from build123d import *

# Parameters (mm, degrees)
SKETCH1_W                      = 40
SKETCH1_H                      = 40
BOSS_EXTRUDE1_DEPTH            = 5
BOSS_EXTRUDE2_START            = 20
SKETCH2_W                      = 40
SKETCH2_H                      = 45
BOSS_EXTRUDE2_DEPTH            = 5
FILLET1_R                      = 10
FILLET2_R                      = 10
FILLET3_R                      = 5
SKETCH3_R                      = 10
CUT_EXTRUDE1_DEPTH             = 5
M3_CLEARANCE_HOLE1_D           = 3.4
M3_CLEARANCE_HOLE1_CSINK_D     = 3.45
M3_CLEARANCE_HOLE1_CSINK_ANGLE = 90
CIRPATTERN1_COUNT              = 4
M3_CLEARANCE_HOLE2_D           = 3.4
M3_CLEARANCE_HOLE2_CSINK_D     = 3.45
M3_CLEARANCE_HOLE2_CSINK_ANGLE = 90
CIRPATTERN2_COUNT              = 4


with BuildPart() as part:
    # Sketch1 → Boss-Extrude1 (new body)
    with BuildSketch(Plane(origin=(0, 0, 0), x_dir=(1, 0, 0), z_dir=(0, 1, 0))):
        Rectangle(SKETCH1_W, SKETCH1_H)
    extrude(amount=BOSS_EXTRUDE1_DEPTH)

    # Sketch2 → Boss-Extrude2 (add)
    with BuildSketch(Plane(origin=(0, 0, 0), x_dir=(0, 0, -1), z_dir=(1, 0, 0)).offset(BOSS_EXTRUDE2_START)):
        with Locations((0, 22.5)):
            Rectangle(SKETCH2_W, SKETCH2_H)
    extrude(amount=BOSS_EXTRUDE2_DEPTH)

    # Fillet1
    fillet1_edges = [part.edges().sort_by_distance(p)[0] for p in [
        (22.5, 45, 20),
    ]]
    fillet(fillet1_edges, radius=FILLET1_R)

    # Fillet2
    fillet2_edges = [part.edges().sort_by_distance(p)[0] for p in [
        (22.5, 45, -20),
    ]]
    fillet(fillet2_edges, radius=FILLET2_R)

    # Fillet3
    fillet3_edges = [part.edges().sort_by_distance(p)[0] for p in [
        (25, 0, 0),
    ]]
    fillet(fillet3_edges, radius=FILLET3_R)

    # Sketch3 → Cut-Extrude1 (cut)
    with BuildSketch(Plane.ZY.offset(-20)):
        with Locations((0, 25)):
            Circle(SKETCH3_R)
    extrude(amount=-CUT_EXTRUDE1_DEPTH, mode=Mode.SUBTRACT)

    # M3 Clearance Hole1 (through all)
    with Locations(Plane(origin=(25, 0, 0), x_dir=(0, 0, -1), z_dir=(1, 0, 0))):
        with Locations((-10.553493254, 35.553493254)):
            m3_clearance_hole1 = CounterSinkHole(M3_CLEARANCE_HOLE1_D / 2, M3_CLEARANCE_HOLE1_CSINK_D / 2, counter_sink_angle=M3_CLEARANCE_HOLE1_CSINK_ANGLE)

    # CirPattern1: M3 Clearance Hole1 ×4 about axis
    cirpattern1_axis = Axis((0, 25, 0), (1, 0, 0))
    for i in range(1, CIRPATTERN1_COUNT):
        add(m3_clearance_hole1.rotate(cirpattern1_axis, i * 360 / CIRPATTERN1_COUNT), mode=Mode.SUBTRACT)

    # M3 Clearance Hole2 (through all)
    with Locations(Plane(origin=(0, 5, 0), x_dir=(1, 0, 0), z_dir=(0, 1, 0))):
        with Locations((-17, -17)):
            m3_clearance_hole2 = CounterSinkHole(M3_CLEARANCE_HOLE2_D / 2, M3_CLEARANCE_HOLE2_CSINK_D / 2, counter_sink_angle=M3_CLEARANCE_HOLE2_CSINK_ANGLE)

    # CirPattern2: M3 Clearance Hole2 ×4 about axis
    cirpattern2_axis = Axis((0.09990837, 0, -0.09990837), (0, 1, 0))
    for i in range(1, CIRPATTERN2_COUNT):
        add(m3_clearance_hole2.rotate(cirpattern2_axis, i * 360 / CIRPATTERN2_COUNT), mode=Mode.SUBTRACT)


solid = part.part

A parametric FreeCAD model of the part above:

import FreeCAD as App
import Part
import Sketcher


def edges_at(feature, points):
    """Names of the edges that pass closest to the given points."""
    edges = feature.Shape.Edges
    near = lambda p: min(range(len(edges)), key=lambda i: edges[i].distToShape(Part.Vertex(*p))[0])
    return sorted({f"Edge{near(p) + 1}" for p in points})


def add_polygon(sketch, points):
    """Adds a closed chain of lines whose ends are joined by coincident constraints."""
    first, n = sketch.GeometryCount, len(points)
    for a, b in zip(points, points[1:] + points[:1]):
        sketch.addGeometry(Part.LineSegment(App.Vector(*a, 0), App.Vector(*b, 0)), False)
    for i in range(n):
        sketch.addConstraint(Sketcher.Constraint("Coincident", first + i, 2, first + (i + 1) % n, 1))

doc = App.newDocument("Part")
params = doc.addObject("Spreadsheet::Sheet", "Params")
for row, (alias, value) in enumerate([
    ("sketch1_width", "40 mm"),
    ("pad1_length", "5 mm"),
    ("sketch2_width", "45 mm"),
    ("sketch2_height", "40 mm"),
    ("pad2_length", "5 mm"),
    ("fillet_radius", "10 mm"),
    ("fillet2_radius", "10 mm"),
    ("fillet3_radius", "5 mm"),
    ("sketch3_diameter", "20 mm"),
    ("pocket1_length", "5 mm"),
    ("sketch4_diameter", "3.4 mm"),
    ("hole_diameter", "3.4 mm"),
    ("hole_csink_diameter", "3.45 mm"),
    ("sketch5_diameter", "3.4 mm"),
    ("hole2_diameter", "3.4 mm"),
    ("hole2_csink_diameter", "3.45 mm"),
], start=1):
    params.set(f"A{row}", alias)
    params.set(f"B{row}", "=" + value)
    params.setAlias(f"B{row}", alias)

body = doc.addObject("PartDesign::Body", "Body")

# Sketch on XZ plane
sketch1 = body.newObject("Sketcher::SketchObject", "Sketch")
sketch1.AttachmentSupport = (doc.getObject("XZ_Plane"), [""])
sketch1.MapMode = "FlatFace"
add_polygon(sketch1, [(-20, -20), (-20, 20), (20, 20), (20, -20)])  # lines 0-3
sketch1.addConstraint(Sketcher.Constraint("Vertical", 0))
sketch1.addConstraint(Sketcher.Constraint("Horizontal", 1))
sketch1.addConstraint(Sketcher.Constraint("Vertical", 2))
sketch1.addConstraint(Sketcher.Constraint("Horizontal", 3))
sketch1.addConstraint(Sketcher.Constraint("Symmetric", 0, 2, 2, 2, -1, 1))
sketch1.addConstraint(Sketcher.Constraint("Equal", 3, 0))
sketch1.addConstraint(Sketcher.Constraint("DistanceX", 1, 1, 1, 2, 40.0))
sketch1.setExpression("Constraints[10]", "Params.sketch1_width")
pad1 = body.newObject("PartDesign::Pad", "Pad")
pad1.Profile = sketch1
pad1.setExpression("Length", "Params.pad1_length")
pad1.Reversed = True

# Sketch on YZ plane
sketch2 = body.newObject("Sketcher::SketchObject", "Sketch001")
sketch2.AttachmentSupport = (doc.getObject("YZ_Plane"), [""])
sketch2.MapMode = "FlatFace"
sketch2.AttachmentOffset = App.Placement(App.Vector(0, 0, 20), App.Rotation())
add_polygon(sketch2, [(45, 20), (0, 20), (0, -20), (45, -20)])  # lines 0-3
sketch2.addConstraint(Sketcher.Constraint("Horizontal", 0))
sketch2.addConstraint(Sketcher.Constraint("Vertical", 1))
sketch2.addConstraint(Sketcher.Constraint("Horizontal", 2))
sketch2.addConstraint(Sketcher.Constraint("Vertical", 3))
sketch2.addConstraint(Sketcher.Constraint("Symmetric", 0, 2, 1, 2, -1, 1))
sketch2.addConstraint(Sketcher.Constraint("DistanceX", 0, 2, 0, 1, 45.0))
sketch2.addConstraint(Sketcher.Constraint("DistanceY", 1, 2, 1, 1, 40.0))
sketch2.setExpression("Constraints[9]", "Params.sketch2_width")
sketch2.setExpression("Constraints[10]", "Params.sketch2_height")
pad2 = body.newObject("PartDesign::Pad", "Pad001")
pad2.Profile = sketch2
pad2.setExpression("Length", "Params.pad2_length")
doc.recompute()

fillet = body.newObject("PartDesign::Fillet", "Fillet")
fillet.Base = (pad2, edges_at(pad2, [(22.5, 45, 20)]))
fillet.setExpression("Radius", "Params.fillet_radius")
doc.recompute()

fillet2 = body.newObject("PartDesign::Fillet", "Fillet001")
fillet2.Base = (fillet, edges_at(fillet, [(22.5, 45, -20)]))
fillet2.setExpression("Radius", "Params.fillet2_radius")
doc.recompute()

fillet3 = body.newObject("PartDesign::Fillet", "Fillet002")
fillet3.Base = (fillet2, edges_at(fillet2, [(25, 0, 0)]))
fillet3.setExpression("Radius", "Params.fillet3_radius")

# Sketch on YZ plane
sketch3 = body.newObject("Sketcher::SketchObject", "Sketch002")
sketch3.AttachmentSupport = (doc.getObject("YZ_Plane"), [""])
sketch3.MapMode = "FlatFace"
sketch3.AttachmentOffset = App.Placement(App.Vector(0, 0, 20), App.Rotation())
sketch3.addGeometry(Part.Circle(App.Vector(25, 0, 0), App.Vector(0, 0, 1), 10), False)
sketch3.addConstraint(Sketcher.Constraint("PointOnObject", 0, 3, -1))
sketch3.addConstraint(Sketcher.Constraint("Diameter", 0, 20.0))
sketch3.addConstraint(Sketcher.Constraint("DistanceX", -1, 1, 0, 3, 25.0))
sketch3.setExpression("Constraints[1]", "Params.sketch3_diameter")
pocket1 = body.newObject("PartDesign::Pocket", "Pocket")
pocket1.Profile = sketch3
pocket1.setExpression("Length", "Params.pocket1_length")
pocket1.Reversed = True

# Sketch on YZ plane
sketch4 = body.newObject("Sketcher::SketchObject", "Sketch003")
sketch4.AttachmentSupport = (doc.getObject("YZ_Plane"), [""])
sketch4.MapMode = "FlatFace"
sketch4.AttachmentOffset = App.Placement(App.Vector(0, 0, 25), App.Rotation())
sketch4.addGeometry(Part.Circle(App.Vector(35.553493, 10.553493, 0), App.Vector(0, 0, 1), 1.7), False)
sketch4.addConstraint(Sketcher.Constraint("Diameter", 0, 3.4))
sketch4.addConstraint(Sketcher.Constraint("DistanceX", -1, 1, 0, 3, 35.553493))
sketch4.addConstraint(Sketcher.Constraint("DistanceY", -1, 1, 0, 3, 10.553493))
sketch4.setExpression("Constraints[0]", "Params.sketch4_diameter")
doc.recompute()
hole = body.newObject("PartDesign::Hole", "Hole")
hole.Profile = sketch4
hole.ThreadType = "None"
hole.setExpression("Diameter", "Params.hole_diameter")
hole.DepthType = "ThroughAll"
hole.HoleCutType = "Countersink"
hole.setExpression("HoleCutDiameter", "Params.hole_csink_diameter")
hole.HoleCutCountersinkAngle = 90
doc.recompute()

datumline = body.newObject("PartDesign::Line", "DatumLine")
datumline.Placement = App.Placement(App.Vector(0, 25, 0), App.Rotation(App.Vector(0, 0, 1), App.Vector(1, 0, 0)))
polarpattern = body.newObject("PartDesign::PolarPattern", "PolarPattern")
polarpattern.Originals = [hole]
polarpattern.Axis = (datumline, [""])
polarpattern.Angle = 360
polarpattern.Occurrences = 4
body.Tip = polarpattern

# Sketch on XZ plane
sketch5 = body.newObject("Sketcher::SketchObject", "Sketch004")
sketch5.AttachmentSupport = (doc.getObject("XZ_Plane"), [""])
sketch5.MapMode = "FlatFace"
sketch5.AttachmentOffset = App.Placement(App.Vector(0, 0, -5), App.Rotation())
sketch5.addGeometry(Part.Circle(App.Vector(-17, 17, 0), App.Vector(0, 0, 1), 1.7), False)
sketch5.addConstraint(Sketcher.Constraint("Diameter", 0, 3.4))
sketch5.addConstraint(Sketcher.Constraint("DistanceX", 0, 3, -1, 1, 17.0))
sketch5.addConstraint(Sketcher.Constraint("DistanceY", -1, 1, 0, 3, 17.0))
sketch5.setExpression("Constraints[0]", "Params.sketch5_diameter")
doc.recompute()
hole2 = body.newObject("PartDesign::Hole", "Hole001")
hole2.Profile = sketch5
hole2.ThreadType = "None"
hole2.setExpression("Diameter", "Params.hole2_diameter")
hole2.DepthType = "ThroughAll"
hole2.HoleCutType = "Countersink"
hole2.setExpression("HoleCutDiameter", "Params.hole2_csink_diameter")
hole2.HoleCutCountersinkAngle = 90
hole2.Reversed = True
doc.recompute()

datumline2 = body.newObject("PartDesign::Line", "DatumLine001")
datumline2.Placement = App.Placement(App.Vector(0.099908, 0, -0.099908), App.Rotation(App.Vector(0, 0, 1), App.Vector(0, 1, 0)))
polarpattern2 = body.newObject("PartDesign::PolarPattern", "PolarPattern001")
polarpattern2.Originals = [hole2]
polarpattern2.Axis = (datumline2, [""])
polarpattern2.Angle = 360
polarpattern2.Occurrences = 4
body.Tip = polarpattern2

doc.recompute()
